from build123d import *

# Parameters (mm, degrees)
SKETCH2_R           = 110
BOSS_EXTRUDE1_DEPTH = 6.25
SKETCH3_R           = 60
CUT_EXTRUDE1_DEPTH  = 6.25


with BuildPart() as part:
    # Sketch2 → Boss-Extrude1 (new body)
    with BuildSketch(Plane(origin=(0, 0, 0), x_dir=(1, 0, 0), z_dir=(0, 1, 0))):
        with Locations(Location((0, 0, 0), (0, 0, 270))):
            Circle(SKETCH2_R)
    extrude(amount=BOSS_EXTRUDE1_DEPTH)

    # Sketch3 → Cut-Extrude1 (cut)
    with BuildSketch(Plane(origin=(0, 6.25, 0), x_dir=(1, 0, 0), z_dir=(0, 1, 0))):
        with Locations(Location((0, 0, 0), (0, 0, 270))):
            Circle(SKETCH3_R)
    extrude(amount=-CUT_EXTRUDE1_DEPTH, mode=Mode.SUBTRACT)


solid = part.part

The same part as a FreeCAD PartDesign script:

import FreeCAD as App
import Part
import Sketcher

doc = App.newDocument("Part")
body = doc.addObject("PartDesign::Body", "Body")

sketch1 = body.newObject("Sketcher::SketchObject", "Sketch")
sketch1.AttachmentSupport = (doc.getObject("XZ_Plane"), [""])
sketch1.MapMode = "FlatFace"
sketch1.addGeometry(Part.Circle(App.Vector(0, 0, 0), App.Vector(0, 0, 1), 110), False)
sketch1.addConstraint([
    Sketcher.Constraint("Coincident", 0, 3, -1, 1),
    Sketcher.Constraint("Diameter", 0, 220.0),
])
pad1 = body.newObject("PartDesign::Pad", "Pad")
pad1.Profile = sketch1
pad1.Length = 6.25
pad1.Reversed = True

sketch2 = body.newObject("Sketcher::SketchObject", "Sketch001")
sketch2.AttachmentSupport = (doc.getObject("XZ_Plane"), [""])
sketch2.MapMode = "FlatFace"
sketch2.AttachmentOffset = App.Placement(App.Vector(0, 0, -6.25), App.Rotation())
sketch2.addGeometry(Part.Circle(App.Vector(0, 0, 0), App.Vector(0, 0, 1), 60), False)
sketch2.addConstraint([
    Sketcher.Constraint("Coincident", 0, 3, -1, 1),
    Sketcher.Constraint("Diameter", 0, 120.0),
])
pocket1 = body.newObject("PartDesign::Pocket", "Pocket")
pocket1.Profile = sketch2
pocket1.Length = 6.25
pocket1.Reversed = True

doc.recompute()
